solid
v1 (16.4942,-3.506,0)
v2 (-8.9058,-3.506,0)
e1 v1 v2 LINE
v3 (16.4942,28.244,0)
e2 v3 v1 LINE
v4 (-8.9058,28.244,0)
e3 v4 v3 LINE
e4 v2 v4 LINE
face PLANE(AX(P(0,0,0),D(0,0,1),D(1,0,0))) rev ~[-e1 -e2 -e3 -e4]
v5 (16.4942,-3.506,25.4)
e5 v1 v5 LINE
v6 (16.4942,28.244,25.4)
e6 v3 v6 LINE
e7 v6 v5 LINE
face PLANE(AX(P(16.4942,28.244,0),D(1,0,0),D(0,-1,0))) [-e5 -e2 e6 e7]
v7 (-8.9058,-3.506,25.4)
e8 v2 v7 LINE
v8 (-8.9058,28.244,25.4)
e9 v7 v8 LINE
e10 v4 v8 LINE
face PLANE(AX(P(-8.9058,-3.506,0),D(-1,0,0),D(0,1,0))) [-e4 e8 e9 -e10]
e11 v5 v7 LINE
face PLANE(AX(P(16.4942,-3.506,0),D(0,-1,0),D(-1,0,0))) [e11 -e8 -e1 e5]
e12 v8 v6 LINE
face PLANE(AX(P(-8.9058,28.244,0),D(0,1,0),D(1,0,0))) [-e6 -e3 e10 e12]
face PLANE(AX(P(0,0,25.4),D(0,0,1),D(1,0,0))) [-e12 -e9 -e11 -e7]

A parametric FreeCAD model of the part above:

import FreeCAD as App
import Part
import Sketcher
from FreeCAD import Vector
Q = App.Units.Quantity

doc = App.newDocument("Part")
body = doc.addObject("PartDesign::Body", "Body")

sketch1 = body.newObject("Sketcher::SketchObject", "Sketch")
sketch1.AttachmentSupport = (doc.getObject("XY_Plane"), [""])
sketch1.MapMode = "FlatFace"
sketch1.addGeometry(Part.LineSegment(Vector(16, 28, 0), Vector(-9, 28, 0)), False)
sketch1.addGeometry(Part.LineSegment(Vector(-9, 28, 0), Vector(-9, -4, 0)), False)
sketch1.addGeometry(Part.LineSegment(Vector(-9, -4, 0), Vector(16, -4, 0)), False)
sketch1.addGeometry(Part.LineSegment(Vector(16, -4, 0), Vector(16, 28, 0)), False)
sketch1.addConstraint(Sketcher.Constraint("Coincident", 0, 2, 1, 1))
sketch1.addConstraint(Sketcher.Constraint("Coincident", 1, 2, 2, 1))
sketch1.addConstraint(Sketcher.Constraint("Coincident", 2, 2, 3, 1))
sketch1.addConstraint(Sketcher.Constraint("Coincident", 3, 2, 0, 1))
sketch1.addConstraint(Sketcher.Constraint("Horizontal", 0))
sketch1.addConstraint(Sketcher.Constraint("Vertical", 1))
sketch1.addConstraint(Sketcher.Constraint("Horizontal", 2))
sketch1.addConstraint(Sketcher.Constraint("Vertical", 3))
sketch1.addConstraint(Sketcher.Constraint("DistanceX", 0, 2, 0, 1, Q("1 in")))
sketch1.addConstraint(Sketcher.Constraint("DistanceY", 1, 2, 1, 1, Q("1.25 in")))
sketch1.addConstraint(Sketcher.Constraint("DistanceX", 0, 2, -1, 1, 8.9058))
sketch1.addConstraint(Sketcher.Constraint("DistanceY", -1, 1, 0, 2, 28.244))
pad1 = body.newObject("PartDesign::Pad", "Pad")
pad1.Profile = sketch1
pad1.Length = Q("1 in")

doc.recompute()
